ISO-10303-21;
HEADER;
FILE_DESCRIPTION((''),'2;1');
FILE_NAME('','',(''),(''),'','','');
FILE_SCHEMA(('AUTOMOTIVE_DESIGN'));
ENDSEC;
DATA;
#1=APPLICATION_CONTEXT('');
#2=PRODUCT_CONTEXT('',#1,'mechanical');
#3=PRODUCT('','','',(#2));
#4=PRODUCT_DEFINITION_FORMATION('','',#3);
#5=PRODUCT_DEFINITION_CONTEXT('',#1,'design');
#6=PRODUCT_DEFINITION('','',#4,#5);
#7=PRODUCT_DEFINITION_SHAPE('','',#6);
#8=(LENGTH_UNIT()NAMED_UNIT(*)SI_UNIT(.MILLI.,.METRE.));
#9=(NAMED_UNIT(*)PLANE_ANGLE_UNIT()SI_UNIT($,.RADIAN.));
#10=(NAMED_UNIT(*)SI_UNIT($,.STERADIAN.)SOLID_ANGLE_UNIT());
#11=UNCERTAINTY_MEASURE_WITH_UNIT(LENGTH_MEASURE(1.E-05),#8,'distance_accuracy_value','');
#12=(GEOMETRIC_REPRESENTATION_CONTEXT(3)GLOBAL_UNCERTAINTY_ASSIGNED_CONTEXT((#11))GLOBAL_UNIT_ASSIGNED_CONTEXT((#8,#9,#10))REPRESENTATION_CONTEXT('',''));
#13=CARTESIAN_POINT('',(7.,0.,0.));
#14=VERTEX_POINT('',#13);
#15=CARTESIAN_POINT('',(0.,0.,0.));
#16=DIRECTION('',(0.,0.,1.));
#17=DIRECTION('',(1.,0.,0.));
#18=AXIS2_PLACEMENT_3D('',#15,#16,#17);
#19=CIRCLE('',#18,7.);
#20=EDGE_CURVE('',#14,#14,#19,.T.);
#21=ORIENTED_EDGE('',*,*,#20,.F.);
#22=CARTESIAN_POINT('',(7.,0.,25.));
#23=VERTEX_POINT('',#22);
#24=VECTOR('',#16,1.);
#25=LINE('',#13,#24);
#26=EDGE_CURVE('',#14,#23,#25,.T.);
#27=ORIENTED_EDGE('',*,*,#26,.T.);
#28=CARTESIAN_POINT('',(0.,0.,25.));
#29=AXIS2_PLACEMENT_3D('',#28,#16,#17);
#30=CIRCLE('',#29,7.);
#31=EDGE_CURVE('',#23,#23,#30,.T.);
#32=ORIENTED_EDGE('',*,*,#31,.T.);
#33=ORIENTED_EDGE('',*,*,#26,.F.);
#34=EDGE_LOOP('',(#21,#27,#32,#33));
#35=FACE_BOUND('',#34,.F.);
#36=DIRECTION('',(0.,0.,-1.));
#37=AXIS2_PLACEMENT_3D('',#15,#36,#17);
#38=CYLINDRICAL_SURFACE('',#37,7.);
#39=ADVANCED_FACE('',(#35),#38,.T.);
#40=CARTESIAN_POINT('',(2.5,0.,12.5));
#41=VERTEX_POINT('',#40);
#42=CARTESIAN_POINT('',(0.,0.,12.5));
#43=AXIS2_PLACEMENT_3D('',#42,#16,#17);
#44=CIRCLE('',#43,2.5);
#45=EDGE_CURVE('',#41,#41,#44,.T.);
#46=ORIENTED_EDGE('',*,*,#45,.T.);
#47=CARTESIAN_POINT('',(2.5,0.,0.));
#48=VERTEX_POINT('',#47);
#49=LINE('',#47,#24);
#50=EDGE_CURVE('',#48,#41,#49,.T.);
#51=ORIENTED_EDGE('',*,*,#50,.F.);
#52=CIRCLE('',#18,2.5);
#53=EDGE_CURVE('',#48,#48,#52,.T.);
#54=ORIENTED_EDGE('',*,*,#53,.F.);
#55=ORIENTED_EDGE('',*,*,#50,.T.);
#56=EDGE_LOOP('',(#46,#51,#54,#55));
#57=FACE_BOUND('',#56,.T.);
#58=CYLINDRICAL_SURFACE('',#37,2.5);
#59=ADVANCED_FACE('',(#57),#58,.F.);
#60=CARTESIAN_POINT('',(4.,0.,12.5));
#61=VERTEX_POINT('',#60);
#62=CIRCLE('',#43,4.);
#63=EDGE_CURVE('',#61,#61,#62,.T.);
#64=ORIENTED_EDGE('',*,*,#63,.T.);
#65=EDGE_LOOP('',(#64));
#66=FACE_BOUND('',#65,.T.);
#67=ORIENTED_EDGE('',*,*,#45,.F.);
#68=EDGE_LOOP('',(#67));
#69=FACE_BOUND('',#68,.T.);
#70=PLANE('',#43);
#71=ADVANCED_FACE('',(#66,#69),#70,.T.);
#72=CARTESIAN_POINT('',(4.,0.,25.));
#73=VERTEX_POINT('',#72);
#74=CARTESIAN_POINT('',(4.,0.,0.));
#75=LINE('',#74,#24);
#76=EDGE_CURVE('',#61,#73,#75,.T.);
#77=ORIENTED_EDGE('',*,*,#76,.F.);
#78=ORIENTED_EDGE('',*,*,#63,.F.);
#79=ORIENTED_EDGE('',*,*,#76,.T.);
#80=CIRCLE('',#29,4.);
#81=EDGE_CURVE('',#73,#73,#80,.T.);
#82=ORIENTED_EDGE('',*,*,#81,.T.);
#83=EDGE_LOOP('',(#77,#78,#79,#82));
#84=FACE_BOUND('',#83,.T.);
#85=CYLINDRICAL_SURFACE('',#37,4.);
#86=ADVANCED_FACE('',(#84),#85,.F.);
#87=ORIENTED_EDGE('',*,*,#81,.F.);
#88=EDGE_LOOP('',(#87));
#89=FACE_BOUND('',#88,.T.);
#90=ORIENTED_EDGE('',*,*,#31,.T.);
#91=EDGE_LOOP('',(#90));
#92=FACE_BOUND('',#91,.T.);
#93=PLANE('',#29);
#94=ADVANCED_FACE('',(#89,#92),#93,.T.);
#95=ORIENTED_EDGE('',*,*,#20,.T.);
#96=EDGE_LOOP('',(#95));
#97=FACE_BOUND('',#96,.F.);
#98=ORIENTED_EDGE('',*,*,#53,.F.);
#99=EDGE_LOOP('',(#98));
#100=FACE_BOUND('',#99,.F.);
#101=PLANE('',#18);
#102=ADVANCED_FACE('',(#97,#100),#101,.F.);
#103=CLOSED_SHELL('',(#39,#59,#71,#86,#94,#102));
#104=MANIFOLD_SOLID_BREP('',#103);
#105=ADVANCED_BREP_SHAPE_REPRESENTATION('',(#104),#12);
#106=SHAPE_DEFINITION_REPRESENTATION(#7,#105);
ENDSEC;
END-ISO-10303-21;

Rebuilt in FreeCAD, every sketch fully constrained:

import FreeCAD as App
import Part
import Sketcher

V = App.Vector
Q = App.Units.Quantity

doc = App.newDocument("Part")
body = doc.addObject("PartDesign::Body", "Body")

# Sketch on XY plane
sketch1 = body.newObject("Sketcher::SketchObject", "Sketch")
sketch1.AttachmentSupport = (doc.getObject("XY_Plane"), [""])
sketch1.MapMode = "FlatFace"
sketch1.addGeometry(Part.Circle(V(0, 0, 0), V(0, 0, 1), 7), False)
sketch1.addGeometry(Part.Circle(V(0, 0, 0), V(0, 0, 1), 4), False)
sketch1.addConstraint(Sketcher.Constraint("Coincident", 0, 3, -1, 1))
sketch1.addConstraint(Sketcher.Constraint("Coincident", 1, 3, -1, 1))
sketch1.addConstraint(Sketcher.Constraint("Diameter", 0, Q("14 mm")))
sketch1.addConstraint(Sketcher.Constraint("Diameter", 1, Q("8 mm")))
pad1 = body.newObject("PartDesign::Pad", "Pad")
pad1.Profile = sketch1
pad1.Length = 25

# Sketch on XY plane
sketch2 = body.newObject("Sketcher::SketchObject", "Sketch001")
sketch2.AttachmentSupport = (doc.getObject("XY_Plane"), [""])
sketch2.MapMode = "FlatFace"
sketch2.addGeometry(Part.Circle(V(0, 0, 0), V(0, 0, 1), 4), False)
sketch2.addGeometry(Part.Circle(V(0, 0, 0), V(0, 0, 1), 2.5), False)
sketch2.addConstraint(Sketcher.Constraint("Coincident", 0, 3, -1, 1))
sketch2.addConstraint(Sketcher.Constraint("Coincident", 1, 3, -1, 1))
sketch2.addConstraint(Sketcher.Constraint("Diameter", 0, Q("8 mm")))
sketch2.addConstraint(Sketcher.Constraint("Diameter", 1, Q("5 mm")))
pad2 = body.newObject("PartDesign::Pad", "Pad001")
pad2.Profile = sketch2
pad2.Length = 12.5

doc.recompute()
